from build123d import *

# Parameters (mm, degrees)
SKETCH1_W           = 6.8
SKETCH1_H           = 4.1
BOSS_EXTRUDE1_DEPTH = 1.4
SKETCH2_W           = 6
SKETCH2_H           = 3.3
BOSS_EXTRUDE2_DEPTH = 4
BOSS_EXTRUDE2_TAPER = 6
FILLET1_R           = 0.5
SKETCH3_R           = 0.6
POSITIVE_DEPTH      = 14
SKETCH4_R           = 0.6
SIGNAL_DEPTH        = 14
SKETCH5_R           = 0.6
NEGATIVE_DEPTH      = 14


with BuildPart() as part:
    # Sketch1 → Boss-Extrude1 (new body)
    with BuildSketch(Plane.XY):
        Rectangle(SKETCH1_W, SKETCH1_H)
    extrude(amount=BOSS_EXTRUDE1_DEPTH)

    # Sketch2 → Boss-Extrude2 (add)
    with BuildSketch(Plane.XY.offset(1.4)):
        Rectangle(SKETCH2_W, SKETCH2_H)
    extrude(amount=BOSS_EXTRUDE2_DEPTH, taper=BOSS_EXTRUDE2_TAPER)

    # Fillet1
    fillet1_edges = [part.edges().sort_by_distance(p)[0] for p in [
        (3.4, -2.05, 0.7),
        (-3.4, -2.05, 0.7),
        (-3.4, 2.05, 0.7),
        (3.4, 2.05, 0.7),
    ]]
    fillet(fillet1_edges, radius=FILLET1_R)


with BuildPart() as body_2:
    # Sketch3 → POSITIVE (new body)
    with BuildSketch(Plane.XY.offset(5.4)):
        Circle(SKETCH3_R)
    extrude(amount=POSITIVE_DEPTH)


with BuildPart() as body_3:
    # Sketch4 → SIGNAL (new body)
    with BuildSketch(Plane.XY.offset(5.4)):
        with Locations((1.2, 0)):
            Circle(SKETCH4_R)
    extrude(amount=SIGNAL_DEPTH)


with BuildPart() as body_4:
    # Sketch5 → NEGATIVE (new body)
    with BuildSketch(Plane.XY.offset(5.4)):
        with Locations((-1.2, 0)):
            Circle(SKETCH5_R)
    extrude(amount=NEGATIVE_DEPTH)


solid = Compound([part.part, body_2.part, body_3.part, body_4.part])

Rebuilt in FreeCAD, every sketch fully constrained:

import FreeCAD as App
import Part
import Sketcher


def edges_at(feature, points):
    """Names of the edges that pass closest to the given points."""
    edges = feature.Shape.Edges
    near = lambda p: min(range(len(edges)), key=lambda i: edges[i].distToShape(Part.Vertex(*p))[0])
    return sorted({f"Edge{near(p) + 1}" for p in points})

doc = App.newDocument("Part")
body = doc.addObject("PartDesign::Body", "Body")

sketch1 = doc.addObject("Sketcher::SketchObject", "Sketch")
body.addObject(sketch1)
sketch1.AttachmentSupport = (doc.XY_Plane, [""])
sketch1.MapMode = "FlatFace"
sketch1.addGeometry([
    Part.LineSegment(App.Vector(-3.4, 2, 0), App.Vector(-3.4, -2, 0)),
    Part.LineSegment(App.Vector(-3.4, -2, 0), App.Vector(3.4, -2, 0)),
    Part.LineSegment(App.Vector(3.4, -2, 0), App.Vector(3.4, 2, 0)),
    Part.LineSegment(App.Vector(3.4, 2, 0), App.Vector(-3.4, 2, 0)),
], False)
sketch1.addConstraint([
    Sketcher.Constraint("Coincident", 0, 2, 1, 1),
    Sketcher.Constraint("Coincident", 1, 2, 2, 1),
    Sketcher.Constraint("Coincident", 2, 2, 3, 1),
    Sketcher.Constraint("Coincident", 3, 2, 0, 1),
    Sketcher.Constraint("Vertical", 0),
    Sketcher.Constraint("Horizontal", 1),
    Sketcher.Constraint("Vertical", 2),
    Sketcher.Constraint("Horizontal", 3),
    Sketcher.Constraint("Symmetric", 0, 2, 2, 2, -1, 1),
    Sketcher.Constraint("DistanceX", 1, 1, 1, 2, 6.8),
    Sketcher.Constraint("DistanceY", 0, 2, 0, 1, 4.1),
])
pad1 = doc.addObject("PartDesign::Pad", "Pad")
body.addObject(pad1)
pad1.Profile = sketch1
pad1.Length = 1.4

sketch2 = doc.addObject("Sketcher::SketchObject", "Sketch001")
body.addObject(sketch2)
sketch2.AttachmentSupport = (doc.XY_Plane, [""])
sketch2.MapMode = "FlatFace"
sketch2.AttachmentOffset = App.Placement(App.Vector(0, 0, 1.4), App.Rotation())
sketch2.addGeometry([
    Part.LineSegment(App.Vector(-3, 1.6, 0), App.Vector(-3, -1.6, 0)),
    Part.LineSegment(App.Vector(-3, -1.6, 0), App.Vector(3, -1.6, 0)),
    Part.LineSegment(App.Vector(3, -1.6, 0), App.Vector(3, 1.6, 0)),
    Part.LineSegment(App.Vector(3, 1.6, 0), App.Vector(-3, 1.6, 0)),
], False)
sketch2.addConstraint([
    Sketcher.Constraint("Coincident", 0, 2, 1, 1),
    Sketcher.Constraint("Coincident", 1, 2, 2, 1),
    Sketcher.Constraint("Coincident", 2, 2, 3, 1),
    Sketcher.Constraint("Coincident", 3, 2, 0, 1),
    Sketcher.Constraint("Vertical", 0),
    Sketcher.Constraint("Horizontal", 1),
    Sketcher.Constraint("Vertical", 2),
    Sketcher.Constraint("Horizontal", 3),
    Sketcher.Constraint("Symmetric", 0, 2, 2, 2, -1, 1),
    Sketcher.Constraint("DistanceX", 1, 1, 1, 2, 6.0),
    Sketcher.Constraint("DistanceY", 0, 2, 0, 1, 3.3),
])
pad2 = doc.addObject("PartDesign::Pad", "Pad001")
body.addObject(pad2)
pad2.Profile = sketch2
pad2.Length = 4
pad2.TaperAngle = -6
doc.recompute()

fillet = doc.addObject("PartDesign::Fillet", "Fillet")
body.addObject(fillet)
fillet.Base = (pad2, edges_at(pad2, [
    (3.4, -2.05, 0.7),
    (-3.4, -2.05, 0.7),
    (-3.4, 2.05, 0.7),
    (3.4, 2.05, 0.7),
]))
fillet.Radius = 0.5
body2 = doc.addObject("PartDesign::Body", "Body001")

sketch3 = doc.addObject("Sketcher::SketchObject", "Sketch002")
body2.addObject(sketch3)
sketch3.AttachmentSupport = (doc.getObject("XY_Plane001"), [""])
sketch3.MapMode = "FlatFace"
sketch3.AttachmentOffset = App.Placement(App.Vector(0, 0, 5.4), App.Rotation())
sketch3.addGeometry(Part.Circle(App.Vector(0, 0, 0), App.Vector(0, 0, 1), 0.6), False)
sketch3.addConstraint([
    Sketcher.Constraint("Coincident", 0, 3, -1, 1),
    Sketcher.Constraint("Diameter", 0, 1.2),
])
pad3 = doc.addObject("PartDesign::Pad", "Pad002")
body2.addObject(pad3)
pad3.Profile = sketch3
pad3.Length = 14
body3 = doc.addObject("PartDesign::Body", "Body002")

sketch4 = doc.addObject("Sketcher::SketchObject", "Sketch003")
body3.addObject(sketch4)
sketch4.AttachmentSupport = (doc.getObject("XY_Plane002"), [""])
sketch4.MapMode = "FlatFace"
sketch4.AttachmentOffset = App.Placement(App.Vector(0, 0, 5.4), App.Rotation())
sketch4.addGeometry(Part.Circle(App.Vector(1.2, 0, 0), App.Vector(0, 0, 1), 0.6), False)
sketch4.addConstraint([
    Sketcher.Constraint("PointOnObject", 0, 3, -1),
    Sketcher.Constraint("Diameter", 0, 1.2),
    Sketcher.Constraint("DistanceX", -1, 1, 0, 3, 1.2),
])
pad4 = doc.addObject("PartDesign::Pad", "Pad003")
body3.addObject(pad4)
pad4.Profile = sketch4
pad4.Length = 14
body4 = doc.addObject("PartDesign::Body", "Body003")

sketch5 = doc.addObject("Sketcher::SketchObject", "Sketch004")
body4.addObject(sketch5)
sketch5.AttachmentSupport = (doc.getObject("XY_Plane003"), [""])
sketch5.MapMode = "FlatFace"
sketch5.AttachmentOffset = App.Placement(App.Vector(0, 0, 5.4), App.Rotation())
sketch5.addGeometry(Part.Circle(App.Vector(-1.2, 0, 0), App.Vector(0, 0, 1), 0.6), False)
sketch5.addConstraint([
    Sketcher.Constraint("PointOnObject", 0, 3, -1),
    Sketcher.Constraint("Diameter", 0, 1.2),
    Sketcher.Constraint("DistanceX", 0, 3, -1, 1, 1.2),
])
pad5 = doc.addObject("PartDesign::Pad", "Pad004")
body4.addObject(pad5)
pad5.Profile = sketch5
pad5.Length = 14

doc.recompute()
